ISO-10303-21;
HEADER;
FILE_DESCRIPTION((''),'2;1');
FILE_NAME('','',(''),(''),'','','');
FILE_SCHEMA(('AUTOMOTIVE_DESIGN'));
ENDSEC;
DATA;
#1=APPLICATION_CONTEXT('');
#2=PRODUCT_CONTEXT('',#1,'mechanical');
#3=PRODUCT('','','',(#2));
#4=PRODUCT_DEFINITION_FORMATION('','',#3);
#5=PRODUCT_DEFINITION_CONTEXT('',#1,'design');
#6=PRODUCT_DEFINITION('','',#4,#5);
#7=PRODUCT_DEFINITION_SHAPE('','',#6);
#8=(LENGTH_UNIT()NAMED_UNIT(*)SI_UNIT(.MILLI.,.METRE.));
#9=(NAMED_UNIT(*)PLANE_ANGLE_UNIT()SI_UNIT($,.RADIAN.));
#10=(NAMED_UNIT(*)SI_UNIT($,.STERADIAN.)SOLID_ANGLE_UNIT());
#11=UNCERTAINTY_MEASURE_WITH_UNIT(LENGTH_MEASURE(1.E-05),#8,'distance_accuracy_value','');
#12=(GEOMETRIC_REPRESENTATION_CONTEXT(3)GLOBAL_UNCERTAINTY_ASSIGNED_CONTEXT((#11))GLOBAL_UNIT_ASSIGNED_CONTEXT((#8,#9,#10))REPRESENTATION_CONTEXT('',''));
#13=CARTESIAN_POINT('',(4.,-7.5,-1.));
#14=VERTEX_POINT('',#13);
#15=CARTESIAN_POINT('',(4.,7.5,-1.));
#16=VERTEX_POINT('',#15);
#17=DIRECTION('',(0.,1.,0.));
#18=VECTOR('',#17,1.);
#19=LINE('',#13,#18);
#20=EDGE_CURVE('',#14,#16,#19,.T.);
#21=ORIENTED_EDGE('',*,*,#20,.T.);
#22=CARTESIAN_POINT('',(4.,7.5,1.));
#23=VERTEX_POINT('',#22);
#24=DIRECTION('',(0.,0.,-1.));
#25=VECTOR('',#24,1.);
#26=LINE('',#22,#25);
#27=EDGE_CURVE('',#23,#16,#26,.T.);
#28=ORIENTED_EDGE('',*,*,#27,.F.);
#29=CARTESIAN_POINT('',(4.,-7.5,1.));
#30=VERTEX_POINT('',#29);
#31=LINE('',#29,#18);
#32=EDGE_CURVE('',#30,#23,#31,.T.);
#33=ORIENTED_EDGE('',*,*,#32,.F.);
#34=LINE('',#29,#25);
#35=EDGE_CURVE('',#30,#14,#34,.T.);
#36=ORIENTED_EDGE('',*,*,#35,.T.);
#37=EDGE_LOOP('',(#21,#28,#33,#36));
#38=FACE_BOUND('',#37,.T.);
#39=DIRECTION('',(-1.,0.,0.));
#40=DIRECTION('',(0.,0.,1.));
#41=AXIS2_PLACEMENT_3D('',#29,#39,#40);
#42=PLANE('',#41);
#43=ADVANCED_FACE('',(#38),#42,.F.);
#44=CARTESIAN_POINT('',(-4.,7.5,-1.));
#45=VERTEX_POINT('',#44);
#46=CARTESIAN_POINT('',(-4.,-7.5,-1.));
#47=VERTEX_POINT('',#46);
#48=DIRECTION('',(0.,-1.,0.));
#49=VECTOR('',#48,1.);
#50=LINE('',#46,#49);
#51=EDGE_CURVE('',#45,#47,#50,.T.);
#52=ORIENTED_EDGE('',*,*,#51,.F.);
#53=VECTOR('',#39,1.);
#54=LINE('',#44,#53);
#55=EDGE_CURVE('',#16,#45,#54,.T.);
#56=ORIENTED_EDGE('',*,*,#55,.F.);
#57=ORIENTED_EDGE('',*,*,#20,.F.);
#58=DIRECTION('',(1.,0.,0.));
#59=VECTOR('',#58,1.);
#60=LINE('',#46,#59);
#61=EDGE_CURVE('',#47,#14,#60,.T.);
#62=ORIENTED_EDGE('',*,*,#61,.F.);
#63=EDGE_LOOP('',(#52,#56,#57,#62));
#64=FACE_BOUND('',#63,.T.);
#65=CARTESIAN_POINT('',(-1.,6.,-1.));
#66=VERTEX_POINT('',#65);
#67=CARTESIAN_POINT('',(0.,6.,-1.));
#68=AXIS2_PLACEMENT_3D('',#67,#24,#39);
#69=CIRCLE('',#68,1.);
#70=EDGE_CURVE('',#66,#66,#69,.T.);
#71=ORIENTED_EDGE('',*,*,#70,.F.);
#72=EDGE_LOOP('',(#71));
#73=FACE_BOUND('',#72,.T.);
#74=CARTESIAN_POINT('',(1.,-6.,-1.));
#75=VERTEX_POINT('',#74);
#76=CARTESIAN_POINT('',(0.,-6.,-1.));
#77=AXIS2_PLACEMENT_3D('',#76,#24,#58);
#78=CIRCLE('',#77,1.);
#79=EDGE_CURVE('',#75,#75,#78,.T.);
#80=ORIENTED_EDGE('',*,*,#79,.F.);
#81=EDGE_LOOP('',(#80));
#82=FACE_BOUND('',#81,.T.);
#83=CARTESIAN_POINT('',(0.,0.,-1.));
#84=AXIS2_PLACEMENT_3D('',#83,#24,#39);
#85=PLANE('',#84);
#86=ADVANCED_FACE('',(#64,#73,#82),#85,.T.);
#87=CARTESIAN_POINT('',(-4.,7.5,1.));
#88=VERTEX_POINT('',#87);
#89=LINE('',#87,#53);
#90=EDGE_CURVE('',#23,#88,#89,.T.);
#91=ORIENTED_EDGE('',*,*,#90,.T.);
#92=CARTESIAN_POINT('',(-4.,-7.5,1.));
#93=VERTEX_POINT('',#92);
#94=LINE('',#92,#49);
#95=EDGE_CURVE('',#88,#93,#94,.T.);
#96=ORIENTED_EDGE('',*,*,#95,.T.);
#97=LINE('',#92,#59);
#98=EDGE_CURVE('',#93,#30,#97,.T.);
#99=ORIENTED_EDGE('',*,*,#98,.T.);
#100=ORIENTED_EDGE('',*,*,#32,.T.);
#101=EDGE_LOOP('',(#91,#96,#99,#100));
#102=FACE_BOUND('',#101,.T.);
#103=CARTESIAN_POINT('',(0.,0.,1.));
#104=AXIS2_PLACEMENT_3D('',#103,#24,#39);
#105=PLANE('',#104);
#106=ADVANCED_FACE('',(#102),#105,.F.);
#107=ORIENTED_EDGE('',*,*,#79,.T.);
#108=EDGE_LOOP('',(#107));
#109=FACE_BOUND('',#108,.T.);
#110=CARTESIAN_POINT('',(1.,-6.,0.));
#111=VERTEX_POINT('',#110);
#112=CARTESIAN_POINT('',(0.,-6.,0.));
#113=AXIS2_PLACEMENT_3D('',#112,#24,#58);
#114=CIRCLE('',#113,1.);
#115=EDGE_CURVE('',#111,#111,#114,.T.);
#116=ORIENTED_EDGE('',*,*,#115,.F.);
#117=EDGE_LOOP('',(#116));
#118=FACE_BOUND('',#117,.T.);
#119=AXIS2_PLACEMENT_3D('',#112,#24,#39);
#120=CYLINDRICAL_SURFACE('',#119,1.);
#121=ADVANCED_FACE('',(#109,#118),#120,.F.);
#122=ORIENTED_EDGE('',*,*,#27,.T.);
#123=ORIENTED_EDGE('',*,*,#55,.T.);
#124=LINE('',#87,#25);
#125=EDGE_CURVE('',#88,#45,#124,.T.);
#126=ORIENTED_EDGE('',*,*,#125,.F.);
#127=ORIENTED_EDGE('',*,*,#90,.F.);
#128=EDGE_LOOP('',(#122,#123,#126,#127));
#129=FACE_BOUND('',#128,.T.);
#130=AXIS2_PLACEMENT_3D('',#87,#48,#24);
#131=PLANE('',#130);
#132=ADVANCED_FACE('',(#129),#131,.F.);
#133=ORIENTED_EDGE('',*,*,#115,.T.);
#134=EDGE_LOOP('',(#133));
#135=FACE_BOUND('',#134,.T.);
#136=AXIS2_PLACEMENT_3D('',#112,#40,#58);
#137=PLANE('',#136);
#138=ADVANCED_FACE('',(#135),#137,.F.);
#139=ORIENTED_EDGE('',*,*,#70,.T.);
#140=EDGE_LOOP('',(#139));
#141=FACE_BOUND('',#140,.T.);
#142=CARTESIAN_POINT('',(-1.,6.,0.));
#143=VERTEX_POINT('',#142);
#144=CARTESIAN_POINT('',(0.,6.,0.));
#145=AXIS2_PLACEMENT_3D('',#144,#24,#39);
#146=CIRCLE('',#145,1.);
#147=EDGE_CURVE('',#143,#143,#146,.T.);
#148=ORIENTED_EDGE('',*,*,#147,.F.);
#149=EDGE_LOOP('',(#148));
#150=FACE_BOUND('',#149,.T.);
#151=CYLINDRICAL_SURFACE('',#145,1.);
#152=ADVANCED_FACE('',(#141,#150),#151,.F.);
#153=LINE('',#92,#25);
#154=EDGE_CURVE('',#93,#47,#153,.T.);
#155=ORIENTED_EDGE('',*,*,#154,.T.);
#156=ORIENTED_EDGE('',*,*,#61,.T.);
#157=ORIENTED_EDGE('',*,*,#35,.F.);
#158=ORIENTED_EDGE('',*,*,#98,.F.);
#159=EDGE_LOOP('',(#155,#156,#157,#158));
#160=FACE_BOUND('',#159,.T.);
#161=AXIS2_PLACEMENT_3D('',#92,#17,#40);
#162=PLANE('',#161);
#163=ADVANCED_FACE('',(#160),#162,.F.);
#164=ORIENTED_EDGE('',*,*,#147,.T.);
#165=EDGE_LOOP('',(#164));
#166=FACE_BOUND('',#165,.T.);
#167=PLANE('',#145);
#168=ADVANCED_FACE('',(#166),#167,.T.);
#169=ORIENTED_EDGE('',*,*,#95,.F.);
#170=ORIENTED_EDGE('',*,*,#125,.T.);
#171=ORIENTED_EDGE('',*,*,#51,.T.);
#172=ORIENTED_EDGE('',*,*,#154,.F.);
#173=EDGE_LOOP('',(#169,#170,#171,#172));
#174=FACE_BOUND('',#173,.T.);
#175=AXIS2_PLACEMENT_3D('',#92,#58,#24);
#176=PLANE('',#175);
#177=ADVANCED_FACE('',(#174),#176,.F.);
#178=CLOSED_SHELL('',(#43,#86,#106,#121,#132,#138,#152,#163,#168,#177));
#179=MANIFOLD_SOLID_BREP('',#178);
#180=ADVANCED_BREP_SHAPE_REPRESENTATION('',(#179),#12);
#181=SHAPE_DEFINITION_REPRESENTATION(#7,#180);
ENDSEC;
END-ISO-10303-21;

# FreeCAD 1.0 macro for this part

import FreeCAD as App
import Part
import Sketcher

V = App.Vector


def add_polygon(sketch, points):
    """Adds a closed chain of lines whose ends are joined by coincident constraints."""
    first, n = sketch.GeometryCount, len(points)
    for a, b in zip(points, points[1:] + points[:1]):
        sketch.addGeometry(Part.LineSegment(App.Vector(*a, 0), App.Vector(*b, 0)), False)
    for i in range(n):
        sketch.addConstraint(Sketcher.Constraint("Coincident", first + i, 2, first + (i + 1) % n, 1))

doc = App.newDocument("Part")
params = doc.addObject("Spreadsheet::Sheet", "Params")
for row, (alias, value) in enumerate([
    ("sketch1_width", "8 mm"),
    ("sketch1_height", "15 mm"),
    ("pad1_length", "2 mm"),
    ("sketch2_diameter", "2 mm"),
    ("pocket1_length", "1 mm"),
], start=1):
    params.set(f"A{row}", alias)
    params.set(f"B{row}", "=" + value)
    params.setAlias(f"B{row}", alias)

body = doc.addObject("PartDesign::Body", "Body")

sketch1 = body.newObject("Sketcher::SketchObject", "Sketch")
sketch1.AttachmentSupport = (doc.getObject("XY_Plane"), [""])
sketch1.MapMode = "FlatFace"
add_polygon(sketch1, [(-4, 8), (-4, -8), (4, -8), (4, 8)])
sketch1.addConstraint([
    Sketcher.Constraint("Vertical", 0),
    Sketcher.Constraint("Horizontal", 1),
    Sketcher.Constraint("Vertical", 2),
    Sketcher.Constraint("Horizontal", 3),
    Sketcher.Constraint("Symmetric", 0, 2, 2, 2, -1, 1),
    Sketcher.Constraint("DistanceX", 1, 1, 1, 2, 8.0),
    Sketcher.Constraint("DistanceY", 0, 2, 0, 1, 15.0),
])
sketch1.setExpression("Constraints[9]", "Params.sketch1_width")
sketch1.setExpression("Constraints[10]", "Params.sketch1_height")
pad1 = body.newObject("PartDesign::Pad", "Pad")
pad1.Profile = sketch1
pad1.setExpression("Length", "Params.pad1_length")
pad1.Midplane = True

sketch2 = body.newObject("Sketcher::SketchObject", "Sketch001")
sketch2.AttachmentSupport = (doc.getObject("XY_Plane"), [""])
sketch2.MapMode = "FlatFace"
sketch2.AttachmentOffset = App.Placement(V(0, 0, -1), App.Rotation())
sketch2.addGeometry([
    Part.Circle(V(0, 6, 0), V(0, 0, 1), 1),
    Part.Circle(V(0, -6, 0), V(0, 0, 1), 1),
], False)
sketch2.addConstraint([
    Sketcher.Constraint("Equal", 0, 1),
    Sketcher.Constraint("Symmetric", 0, 3, 1, 3, -1, 1),
    Sketcher.Constraint("PointOnObject", 0, 3, -2),
    Sketcher.Constraint("Diameter", 0, 2.0),
    Sketcher.Constraint("DistanceY", -1, 1, 0, 3, 6.0),
])
sketch2.setExpression("Constraints[3]", "Params.sketch2_diameter")
pocket1 = body.newObject("PartDesign::Pocket", "Pocket")
pocket1.Profile = sketch2
pocket1.setExpression("Length", "Params.pocket1_length")
pocket1.Reversed = True

doc.recompute()
